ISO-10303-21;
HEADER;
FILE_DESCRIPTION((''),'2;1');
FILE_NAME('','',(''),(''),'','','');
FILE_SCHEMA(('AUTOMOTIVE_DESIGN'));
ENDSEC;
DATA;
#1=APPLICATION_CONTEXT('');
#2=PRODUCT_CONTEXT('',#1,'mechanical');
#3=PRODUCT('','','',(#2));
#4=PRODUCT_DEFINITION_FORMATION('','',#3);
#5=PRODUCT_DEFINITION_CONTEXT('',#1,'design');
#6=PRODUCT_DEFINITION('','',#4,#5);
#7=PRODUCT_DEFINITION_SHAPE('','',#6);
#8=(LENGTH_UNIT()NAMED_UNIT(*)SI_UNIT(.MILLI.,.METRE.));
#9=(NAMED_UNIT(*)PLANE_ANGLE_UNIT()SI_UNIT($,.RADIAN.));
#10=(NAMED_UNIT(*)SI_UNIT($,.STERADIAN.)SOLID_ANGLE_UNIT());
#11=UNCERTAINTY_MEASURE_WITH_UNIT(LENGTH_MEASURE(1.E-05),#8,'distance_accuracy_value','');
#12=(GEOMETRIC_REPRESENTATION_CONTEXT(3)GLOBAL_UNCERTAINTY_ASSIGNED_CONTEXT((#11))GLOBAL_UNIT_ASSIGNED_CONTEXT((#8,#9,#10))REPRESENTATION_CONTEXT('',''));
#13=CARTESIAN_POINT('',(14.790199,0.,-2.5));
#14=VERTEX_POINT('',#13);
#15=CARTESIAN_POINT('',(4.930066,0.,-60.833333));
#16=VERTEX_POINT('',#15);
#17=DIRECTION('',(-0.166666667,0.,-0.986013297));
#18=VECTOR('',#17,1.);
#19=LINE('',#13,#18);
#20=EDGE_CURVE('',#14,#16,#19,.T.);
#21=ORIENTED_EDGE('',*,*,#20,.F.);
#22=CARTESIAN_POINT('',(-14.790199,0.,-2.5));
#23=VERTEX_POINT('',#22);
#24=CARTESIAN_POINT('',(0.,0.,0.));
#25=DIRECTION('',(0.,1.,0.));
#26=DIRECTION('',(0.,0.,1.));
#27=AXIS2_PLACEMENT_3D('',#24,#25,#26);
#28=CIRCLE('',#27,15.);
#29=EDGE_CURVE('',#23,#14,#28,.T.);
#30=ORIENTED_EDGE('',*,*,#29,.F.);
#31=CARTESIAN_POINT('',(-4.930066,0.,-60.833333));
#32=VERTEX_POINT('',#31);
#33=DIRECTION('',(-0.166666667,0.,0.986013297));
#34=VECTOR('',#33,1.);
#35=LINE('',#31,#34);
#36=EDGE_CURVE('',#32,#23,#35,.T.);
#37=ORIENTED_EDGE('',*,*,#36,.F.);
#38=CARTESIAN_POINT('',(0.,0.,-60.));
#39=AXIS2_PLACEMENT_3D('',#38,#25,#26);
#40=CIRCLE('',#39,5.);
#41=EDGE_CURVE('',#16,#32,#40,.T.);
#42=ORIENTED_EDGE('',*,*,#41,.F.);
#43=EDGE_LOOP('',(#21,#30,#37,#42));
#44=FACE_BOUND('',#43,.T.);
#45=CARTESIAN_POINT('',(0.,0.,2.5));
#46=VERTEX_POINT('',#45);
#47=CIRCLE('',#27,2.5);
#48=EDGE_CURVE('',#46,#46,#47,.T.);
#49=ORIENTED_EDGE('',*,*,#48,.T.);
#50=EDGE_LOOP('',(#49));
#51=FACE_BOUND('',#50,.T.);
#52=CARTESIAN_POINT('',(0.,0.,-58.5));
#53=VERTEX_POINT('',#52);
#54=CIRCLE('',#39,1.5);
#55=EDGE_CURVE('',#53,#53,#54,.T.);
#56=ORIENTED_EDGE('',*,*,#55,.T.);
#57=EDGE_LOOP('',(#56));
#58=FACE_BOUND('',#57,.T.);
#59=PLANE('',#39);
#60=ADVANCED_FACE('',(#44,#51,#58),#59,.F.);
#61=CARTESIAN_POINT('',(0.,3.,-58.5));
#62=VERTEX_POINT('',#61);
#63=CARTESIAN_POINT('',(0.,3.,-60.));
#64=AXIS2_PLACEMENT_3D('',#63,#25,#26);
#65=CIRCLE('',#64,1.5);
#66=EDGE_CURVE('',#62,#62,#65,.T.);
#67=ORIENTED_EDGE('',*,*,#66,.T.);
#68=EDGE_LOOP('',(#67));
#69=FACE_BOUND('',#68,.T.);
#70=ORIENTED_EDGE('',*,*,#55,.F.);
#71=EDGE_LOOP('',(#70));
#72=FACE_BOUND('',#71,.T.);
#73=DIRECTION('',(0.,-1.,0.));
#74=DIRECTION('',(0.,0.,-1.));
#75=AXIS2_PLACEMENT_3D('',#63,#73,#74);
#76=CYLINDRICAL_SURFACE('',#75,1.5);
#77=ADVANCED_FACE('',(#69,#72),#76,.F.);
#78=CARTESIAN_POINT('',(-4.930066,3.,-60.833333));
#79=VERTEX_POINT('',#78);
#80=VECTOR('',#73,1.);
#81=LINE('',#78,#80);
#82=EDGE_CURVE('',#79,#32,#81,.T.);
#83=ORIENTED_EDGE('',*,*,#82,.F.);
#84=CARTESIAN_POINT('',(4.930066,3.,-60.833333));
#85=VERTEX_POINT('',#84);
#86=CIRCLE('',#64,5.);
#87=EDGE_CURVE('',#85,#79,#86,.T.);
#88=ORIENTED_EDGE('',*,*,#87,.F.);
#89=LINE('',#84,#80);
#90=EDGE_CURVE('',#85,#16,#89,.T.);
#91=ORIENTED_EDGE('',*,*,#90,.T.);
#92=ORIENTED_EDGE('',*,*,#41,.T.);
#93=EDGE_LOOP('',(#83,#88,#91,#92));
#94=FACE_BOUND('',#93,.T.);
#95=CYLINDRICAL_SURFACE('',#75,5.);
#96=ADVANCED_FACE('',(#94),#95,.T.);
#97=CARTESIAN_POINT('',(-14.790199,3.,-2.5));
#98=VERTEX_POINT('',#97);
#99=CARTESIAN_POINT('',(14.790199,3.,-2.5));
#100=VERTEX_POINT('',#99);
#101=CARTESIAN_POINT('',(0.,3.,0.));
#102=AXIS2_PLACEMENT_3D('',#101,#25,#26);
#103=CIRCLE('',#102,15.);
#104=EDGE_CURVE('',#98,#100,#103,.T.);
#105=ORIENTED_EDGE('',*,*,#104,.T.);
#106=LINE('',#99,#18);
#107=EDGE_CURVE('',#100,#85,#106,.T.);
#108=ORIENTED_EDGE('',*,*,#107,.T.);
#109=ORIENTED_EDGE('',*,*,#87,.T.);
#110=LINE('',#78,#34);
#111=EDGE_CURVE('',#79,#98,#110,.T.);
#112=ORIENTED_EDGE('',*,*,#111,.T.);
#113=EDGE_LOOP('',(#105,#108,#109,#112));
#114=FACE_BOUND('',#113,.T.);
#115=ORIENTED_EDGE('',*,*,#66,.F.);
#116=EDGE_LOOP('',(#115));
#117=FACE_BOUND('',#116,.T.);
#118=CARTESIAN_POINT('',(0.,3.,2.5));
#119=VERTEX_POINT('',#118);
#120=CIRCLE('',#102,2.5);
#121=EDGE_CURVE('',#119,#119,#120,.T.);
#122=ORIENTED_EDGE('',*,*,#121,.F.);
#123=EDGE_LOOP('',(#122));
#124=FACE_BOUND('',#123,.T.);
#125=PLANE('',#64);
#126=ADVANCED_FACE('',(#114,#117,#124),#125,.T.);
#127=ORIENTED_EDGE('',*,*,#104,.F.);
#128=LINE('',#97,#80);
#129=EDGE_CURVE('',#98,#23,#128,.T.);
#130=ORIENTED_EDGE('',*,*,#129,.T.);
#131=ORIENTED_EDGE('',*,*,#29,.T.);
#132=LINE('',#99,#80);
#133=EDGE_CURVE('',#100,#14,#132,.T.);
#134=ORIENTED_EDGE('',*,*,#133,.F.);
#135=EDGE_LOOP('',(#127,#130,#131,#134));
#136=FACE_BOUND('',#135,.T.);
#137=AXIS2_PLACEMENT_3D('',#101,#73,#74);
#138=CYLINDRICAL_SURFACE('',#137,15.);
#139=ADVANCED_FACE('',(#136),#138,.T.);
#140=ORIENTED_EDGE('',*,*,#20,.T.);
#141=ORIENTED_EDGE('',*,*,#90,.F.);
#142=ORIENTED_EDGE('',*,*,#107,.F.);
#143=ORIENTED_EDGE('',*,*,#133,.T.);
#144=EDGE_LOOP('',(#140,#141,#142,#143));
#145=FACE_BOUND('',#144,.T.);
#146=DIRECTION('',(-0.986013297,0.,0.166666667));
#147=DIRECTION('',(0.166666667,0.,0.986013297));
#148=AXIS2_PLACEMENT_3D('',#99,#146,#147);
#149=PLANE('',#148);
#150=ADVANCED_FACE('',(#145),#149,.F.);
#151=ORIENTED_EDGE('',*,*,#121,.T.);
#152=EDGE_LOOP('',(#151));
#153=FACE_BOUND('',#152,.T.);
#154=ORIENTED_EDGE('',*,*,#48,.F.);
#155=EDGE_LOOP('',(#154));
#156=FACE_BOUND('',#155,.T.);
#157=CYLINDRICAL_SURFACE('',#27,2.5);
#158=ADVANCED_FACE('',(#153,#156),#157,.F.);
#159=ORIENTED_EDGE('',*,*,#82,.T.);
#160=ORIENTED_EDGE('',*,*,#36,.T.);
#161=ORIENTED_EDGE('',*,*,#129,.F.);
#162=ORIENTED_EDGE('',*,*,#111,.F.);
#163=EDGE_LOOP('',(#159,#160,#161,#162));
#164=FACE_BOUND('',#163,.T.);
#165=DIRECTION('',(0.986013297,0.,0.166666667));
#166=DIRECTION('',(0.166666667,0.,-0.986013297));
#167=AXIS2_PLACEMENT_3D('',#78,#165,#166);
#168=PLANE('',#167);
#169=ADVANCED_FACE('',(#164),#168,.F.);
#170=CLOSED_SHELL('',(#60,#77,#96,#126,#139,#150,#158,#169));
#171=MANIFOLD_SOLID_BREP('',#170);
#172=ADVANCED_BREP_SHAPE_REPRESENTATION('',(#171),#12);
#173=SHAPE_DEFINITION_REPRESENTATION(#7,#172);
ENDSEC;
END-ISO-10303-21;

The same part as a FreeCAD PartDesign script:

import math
import FreeCAD as App
import Part
import Sketcher
from FreeCAD import Vector

doc = App.newDocument("Part")
body = doc.addObject("PartDesign::Body", "Body")

# Sketch on XZ plane
sketch1 = body.newObject("Sketcher::SketchObject", "Sketch")
sketch1.AttachmentSupport = (doc.getObject("XZ_Plane"), [""])
sketch1.MapMode = "FlatFace"
sketch1.addGeometry(Part.LineSegment(Vector(-4.930066, -60.833333, 0), Vector(-14.790199, -2.5, 0)), False)
sketch1.addGeometry(Part.ArcOfCircle(Part.Circle(Vector(0, 0, 0), Vector(0, 0, 1), 15), math.radians(-9.594068), math.radians(189.594068)), False)
sketch1.addGeometry(Part.LineSegment(Vector(14.790199, -2.5, 0), Vector(4.930066, -60.833333, 0)), False)
sketch1.addGeometry(Part.ArcOfCircle(Part.Circle(Vector(0, -60, 0), Vector(0, 0, 1), 5), math.radians(-170.405932), math.radians(-9.594068)), False)
sketch1.addGeometry(Part.Circle(Vector(0, -60, 0), Vector(0, 0, 1), 1.5), False)
sketch1.addConstraint(Sketcher.Constraint("Tangent", 0, 2, 1, 2))
sketch1.addConstraint(Sketcher.Constraint("Tangent", 1, 1, 2, 1))
sketch1.addConstraint(Sketcher.Constraint("Tangent", 2, 2, 3, 2))
sketch1.addConstraint(Sketcher.Constraint("Tangent", 3, 1, 0, 1))
sketch1.addConstraint(Sketcher.Constraint("Coincident", 1, 3, -1, 1))
sketch1.addConstraint(Sketcher.Constraint("Coincident", 4, 3, 3, 3))
sketch1.addConstraint(Sketcher.Constraint("PointOnObject", 3, 3, -2))
sketch1.addConstraint(Sketcher.Constraint("Diameter", 4, 3.0))
sketch1.addConstraint(Sketcher.Constraint("Radius", 1, 15.0))
sketch1.addConstraint(Sketcher.Constraint("Radius", 3, 5.0))
sketch1.addConstraint(Sketcher.Constraint("DistanceY", 3, 3, -1, 1, 60.0))
pad1 = body.newObject("PartDesign::Pad", "Pad")
pad1.Profile = sketch1
pad1.Length = 3
pad1.Reversed = True

# Sketch on XZ plane
sketch2 = body.newObject("Sketcher::SketchObject", "Sketch001")
sketch2.AttachmentSupport = (doc.getObject("XZ_Plane"), [""])
sketch2.MapMode = "FlatFace"
sketch2.AttachmentOffset = App.Placement(Vector(0, 0, -3), App.Rotation())
sketch2.addGeometry(Part.Circle(Vector(0, 0, 0), Vector(0, 0, 1), 2.5), False)
sketch2.addConstraint(Sketcher.Constraint("Coincident", 0, 3, -1, 1))
sketch2.addConstraint(Sketcher.Constraint("Diameter", 0, 5.0))
pocket1 = body.newObject("PartDesign::Pocket", "Pocket")
pocket1.Profile = sketch2
pocket1.Length = 3
pocket1.Reversed = True

doc.recompute()
